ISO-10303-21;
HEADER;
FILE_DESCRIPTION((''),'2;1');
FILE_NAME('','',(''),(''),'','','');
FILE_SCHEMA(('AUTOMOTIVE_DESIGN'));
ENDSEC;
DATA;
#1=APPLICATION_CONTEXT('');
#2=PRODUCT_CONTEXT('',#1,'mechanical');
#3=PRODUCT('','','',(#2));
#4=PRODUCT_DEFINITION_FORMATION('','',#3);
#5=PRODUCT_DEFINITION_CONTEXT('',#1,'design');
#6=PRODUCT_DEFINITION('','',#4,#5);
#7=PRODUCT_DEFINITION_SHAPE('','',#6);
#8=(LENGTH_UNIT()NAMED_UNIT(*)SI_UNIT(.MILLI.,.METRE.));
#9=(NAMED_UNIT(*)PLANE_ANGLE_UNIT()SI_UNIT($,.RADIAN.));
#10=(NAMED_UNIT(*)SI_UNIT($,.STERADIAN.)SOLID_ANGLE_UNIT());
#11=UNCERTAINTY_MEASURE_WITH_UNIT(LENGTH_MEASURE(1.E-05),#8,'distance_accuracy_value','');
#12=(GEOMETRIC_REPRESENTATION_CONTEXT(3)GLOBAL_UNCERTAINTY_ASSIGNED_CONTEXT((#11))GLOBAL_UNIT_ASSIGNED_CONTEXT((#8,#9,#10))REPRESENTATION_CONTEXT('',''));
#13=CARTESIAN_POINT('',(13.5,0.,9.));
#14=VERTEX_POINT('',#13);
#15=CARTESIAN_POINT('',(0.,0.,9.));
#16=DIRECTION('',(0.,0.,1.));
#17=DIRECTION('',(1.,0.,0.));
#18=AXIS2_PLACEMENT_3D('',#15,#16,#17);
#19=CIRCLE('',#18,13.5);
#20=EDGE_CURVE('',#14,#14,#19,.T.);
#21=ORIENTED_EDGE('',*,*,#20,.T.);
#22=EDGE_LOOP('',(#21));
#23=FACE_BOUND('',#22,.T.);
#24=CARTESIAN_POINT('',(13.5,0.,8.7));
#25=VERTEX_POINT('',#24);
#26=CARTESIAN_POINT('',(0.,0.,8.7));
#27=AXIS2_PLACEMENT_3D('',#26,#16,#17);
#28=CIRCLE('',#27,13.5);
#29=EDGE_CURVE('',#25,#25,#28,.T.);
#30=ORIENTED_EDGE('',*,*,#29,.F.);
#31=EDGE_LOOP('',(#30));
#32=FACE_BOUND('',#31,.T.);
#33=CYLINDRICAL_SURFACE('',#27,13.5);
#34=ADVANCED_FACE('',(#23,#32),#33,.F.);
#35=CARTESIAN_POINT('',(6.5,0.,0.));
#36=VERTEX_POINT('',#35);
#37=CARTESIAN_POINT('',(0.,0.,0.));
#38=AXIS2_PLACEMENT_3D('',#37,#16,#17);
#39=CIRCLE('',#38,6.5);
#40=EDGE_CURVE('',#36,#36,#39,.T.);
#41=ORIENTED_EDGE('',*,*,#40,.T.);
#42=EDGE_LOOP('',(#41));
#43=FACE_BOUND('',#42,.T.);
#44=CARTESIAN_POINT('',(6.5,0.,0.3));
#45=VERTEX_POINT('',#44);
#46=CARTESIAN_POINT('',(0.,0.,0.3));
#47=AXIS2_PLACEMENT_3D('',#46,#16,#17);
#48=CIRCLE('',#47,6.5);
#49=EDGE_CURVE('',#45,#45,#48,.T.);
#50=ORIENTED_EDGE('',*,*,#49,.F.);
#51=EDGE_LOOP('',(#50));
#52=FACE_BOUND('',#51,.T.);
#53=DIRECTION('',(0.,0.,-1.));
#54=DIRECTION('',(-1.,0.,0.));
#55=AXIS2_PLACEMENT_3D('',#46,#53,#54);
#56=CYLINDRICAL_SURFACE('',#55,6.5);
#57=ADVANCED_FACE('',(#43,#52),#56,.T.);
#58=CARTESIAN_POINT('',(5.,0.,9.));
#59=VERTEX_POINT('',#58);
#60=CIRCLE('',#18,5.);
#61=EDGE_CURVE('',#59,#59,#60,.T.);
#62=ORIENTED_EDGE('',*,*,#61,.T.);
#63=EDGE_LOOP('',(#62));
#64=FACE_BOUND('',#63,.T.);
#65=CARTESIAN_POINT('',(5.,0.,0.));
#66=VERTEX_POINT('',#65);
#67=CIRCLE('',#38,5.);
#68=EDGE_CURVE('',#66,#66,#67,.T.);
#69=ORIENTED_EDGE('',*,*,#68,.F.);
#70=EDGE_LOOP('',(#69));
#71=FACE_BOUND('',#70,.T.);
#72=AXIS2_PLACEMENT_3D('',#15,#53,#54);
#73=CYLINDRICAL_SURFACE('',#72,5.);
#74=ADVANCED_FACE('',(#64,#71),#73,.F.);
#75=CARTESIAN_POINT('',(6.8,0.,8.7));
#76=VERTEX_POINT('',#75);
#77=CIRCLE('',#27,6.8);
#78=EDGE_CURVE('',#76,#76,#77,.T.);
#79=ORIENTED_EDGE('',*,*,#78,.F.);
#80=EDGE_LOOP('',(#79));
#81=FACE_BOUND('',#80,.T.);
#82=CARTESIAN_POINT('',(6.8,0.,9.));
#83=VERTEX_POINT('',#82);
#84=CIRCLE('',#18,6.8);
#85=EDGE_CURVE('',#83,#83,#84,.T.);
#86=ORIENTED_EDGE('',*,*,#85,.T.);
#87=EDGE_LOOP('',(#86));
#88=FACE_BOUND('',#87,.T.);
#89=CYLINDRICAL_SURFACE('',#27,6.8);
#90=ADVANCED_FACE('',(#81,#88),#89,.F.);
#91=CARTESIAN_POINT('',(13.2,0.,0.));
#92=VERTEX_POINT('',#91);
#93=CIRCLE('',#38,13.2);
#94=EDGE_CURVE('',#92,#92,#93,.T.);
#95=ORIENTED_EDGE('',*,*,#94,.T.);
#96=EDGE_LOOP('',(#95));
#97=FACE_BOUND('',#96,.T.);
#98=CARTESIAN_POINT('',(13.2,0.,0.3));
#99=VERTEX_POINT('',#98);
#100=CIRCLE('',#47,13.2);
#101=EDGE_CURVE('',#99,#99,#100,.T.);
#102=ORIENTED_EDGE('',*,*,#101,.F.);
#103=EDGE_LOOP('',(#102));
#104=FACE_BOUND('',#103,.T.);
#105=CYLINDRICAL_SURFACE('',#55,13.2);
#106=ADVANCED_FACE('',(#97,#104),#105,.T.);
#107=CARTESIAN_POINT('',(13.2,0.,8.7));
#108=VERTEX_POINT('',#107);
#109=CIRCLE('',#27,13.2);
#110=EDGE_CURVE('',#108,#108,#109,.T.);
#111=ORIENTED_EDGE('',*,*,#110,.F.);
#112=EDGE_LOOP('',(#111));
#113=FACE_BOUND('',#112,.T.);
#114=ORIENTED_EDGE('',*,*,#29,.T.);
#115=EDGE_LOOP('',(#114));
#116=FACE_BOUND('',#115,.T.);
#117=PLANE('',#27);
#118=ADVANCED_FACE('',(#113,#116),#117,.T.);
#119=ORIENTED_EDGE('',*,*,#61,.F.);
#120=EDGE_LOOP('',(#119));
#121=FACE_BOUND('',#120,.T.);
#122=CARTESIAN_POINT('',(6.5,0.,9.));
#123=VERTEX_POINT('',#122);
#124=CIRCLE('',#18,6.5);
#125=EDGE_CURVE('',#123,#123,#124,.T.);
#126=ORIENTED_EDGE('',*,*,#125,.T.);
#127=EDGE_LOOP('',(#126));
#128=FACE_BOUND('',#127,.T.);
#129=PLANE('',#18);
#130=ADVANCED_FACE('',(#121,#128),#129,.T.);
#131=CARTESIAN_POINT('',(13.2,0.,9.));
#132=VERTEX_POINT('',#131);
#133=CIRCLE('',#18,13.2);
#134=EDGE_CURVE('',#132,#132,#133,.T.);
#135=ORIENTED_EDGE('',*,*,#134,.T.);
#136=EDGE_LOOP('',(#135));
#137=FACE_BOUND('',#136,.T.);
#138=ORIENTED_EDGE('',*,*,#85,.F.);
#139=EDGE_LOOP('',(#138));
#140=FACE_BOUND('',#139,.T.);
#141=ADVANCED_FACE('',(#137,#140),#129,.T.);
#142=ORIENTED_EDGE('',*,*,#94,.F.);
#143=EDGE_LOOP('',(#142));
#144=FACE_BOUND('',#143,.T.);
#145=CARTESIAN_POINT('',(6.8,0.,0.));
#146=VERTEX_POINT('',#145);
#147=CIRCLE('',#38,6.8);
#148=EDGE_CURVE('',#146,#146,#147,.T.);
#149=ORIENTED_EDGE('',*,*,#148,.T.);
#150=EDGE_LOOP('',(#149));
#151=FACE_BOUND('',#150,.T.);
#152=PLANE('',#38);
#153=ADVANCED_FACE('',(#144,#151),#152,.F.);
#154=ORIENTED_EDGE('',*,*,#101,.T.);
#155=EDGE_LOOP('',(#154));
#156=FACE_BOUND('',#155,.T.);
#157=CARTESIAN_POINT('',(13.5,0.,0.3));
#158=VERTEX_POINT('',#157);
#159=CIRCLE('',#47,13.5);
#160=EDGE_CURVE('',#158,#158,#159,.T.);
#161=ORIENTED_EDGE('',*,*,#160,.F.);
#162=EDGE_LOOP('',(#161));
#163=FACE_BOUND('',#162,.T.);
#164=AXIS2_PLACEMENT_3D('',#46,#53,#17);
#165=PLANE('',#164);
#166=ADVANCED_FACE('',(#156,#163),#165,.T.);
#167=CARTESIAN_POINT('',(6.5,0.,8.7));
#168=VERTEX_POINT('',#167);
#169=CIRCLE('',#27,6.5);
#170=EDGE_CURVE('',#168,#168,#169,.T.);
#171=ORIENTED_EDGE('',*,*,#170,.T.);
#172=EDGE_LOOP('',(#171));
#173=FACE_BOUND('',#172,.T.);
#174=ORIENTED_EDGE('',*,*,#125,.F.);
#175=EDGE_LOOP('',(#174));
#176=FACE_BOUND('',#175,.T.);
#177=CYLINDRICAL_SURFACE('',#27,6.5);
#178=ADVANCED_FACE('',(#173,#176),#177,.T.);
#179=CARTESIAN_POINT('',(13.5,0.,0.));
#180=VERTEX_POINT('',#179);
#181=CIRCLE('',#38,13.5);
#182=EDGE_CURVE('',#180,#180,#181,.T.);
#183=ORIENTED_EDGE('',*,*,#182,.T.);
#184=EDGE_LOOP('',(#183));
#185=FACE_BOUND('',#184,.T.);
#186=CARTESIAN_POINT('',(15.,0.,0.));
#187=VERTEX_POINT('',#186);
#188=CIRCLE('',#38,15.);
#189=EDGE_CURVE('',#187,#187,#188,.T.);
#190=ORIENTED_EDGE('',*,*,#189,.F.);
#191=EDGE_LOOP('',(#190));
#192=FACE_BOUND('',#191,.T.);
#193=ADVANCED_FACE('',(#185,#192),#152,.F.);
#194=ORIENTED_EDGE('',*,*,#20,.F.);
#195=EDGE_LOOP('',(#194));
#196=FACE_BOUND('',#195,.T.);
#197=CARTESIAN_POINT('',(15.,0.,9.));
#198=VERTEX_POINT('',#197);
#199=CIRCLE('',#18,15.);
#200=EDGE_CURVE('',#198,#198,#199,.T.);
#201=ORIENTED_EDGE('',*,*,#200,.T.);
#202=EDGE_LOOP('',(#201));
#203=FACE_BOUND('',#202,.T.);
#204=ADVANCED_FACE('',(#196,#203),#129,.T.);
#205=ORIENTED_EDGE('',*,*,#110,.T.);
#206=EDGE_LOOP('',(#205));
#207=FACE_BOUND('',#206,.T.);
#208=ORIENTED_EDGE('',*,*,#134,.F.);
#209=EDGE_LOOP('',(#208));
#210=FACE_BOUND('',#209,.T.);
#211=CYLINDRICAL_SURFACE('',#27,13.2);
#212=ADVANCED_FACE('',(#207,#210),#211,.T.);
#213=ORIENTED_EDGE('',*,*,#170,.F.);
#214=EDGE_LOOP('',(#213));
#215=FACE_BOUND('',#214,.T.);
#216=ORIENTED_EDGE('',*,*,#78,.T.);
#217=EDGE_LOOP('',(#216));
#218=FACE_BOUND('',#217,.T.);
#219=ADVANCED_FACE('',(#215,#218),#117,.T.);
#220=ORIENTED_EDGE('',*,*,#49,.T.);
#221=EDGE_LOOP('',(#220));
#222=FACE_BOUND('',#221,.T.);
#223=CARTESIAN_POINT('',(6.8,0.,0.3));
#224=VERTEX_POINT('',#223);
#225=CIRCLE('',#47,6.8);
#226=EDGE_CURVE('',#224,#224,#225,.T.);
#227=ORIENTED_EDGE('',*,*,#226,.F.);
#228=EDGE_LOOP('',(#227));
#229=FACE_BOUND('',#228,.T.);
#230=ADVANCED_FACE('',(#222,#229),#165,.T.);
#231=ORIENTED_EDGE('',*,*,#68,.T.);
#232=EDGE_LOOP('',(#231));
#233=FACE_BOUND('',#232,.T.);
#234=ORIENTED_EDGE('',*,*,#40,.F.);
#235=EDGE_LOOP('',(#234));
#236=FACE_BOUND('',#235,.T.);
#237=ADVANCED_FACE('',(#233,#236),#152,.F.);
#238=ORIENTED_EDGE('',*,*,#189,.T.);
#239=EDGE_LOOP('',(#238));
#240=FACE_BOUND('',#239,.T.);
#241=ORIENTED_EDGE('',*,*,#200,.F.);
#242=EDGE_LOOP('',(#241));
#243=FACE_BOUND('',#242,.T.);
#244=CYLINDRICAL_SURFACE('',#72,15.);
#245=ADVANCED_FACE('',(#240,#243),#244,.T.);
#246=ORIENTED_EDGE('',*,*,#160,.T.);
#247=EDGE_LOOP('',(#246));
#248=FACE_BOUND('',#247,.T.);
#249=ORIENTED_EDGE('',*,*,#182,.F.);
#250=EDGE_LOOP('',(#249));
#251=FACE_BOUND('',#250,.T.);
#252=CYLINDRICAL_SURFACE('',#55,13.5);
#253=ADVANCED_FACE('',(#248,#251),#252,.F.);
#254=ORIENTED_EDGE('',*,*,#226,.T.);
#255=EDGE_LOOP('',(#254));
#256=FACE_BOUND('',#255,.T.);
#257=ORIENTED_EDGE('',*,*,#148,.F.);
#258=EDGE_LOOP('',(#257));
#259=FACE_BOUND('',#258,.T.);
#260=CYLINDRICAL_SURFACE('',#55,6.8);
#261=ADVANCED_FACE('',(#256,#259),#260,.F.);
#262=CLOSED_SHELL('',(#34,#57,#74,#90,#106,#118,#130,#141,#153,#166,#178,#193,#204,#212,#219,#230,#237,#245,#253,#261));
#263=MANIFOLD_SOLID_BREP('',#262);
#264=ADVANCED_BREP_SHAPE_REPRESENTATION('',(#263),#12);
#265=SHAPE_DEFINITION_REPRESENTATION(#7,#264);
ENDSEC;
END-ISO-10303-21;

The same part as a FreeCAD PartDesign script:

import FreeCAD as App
import Part
import Sketcher
from FreeCAD import Vector

doc = App.newDocument("Part")
body = doc.addObject("PartDesign::Body", "Body")

sketch1 = body.newObject("Sketcher::SketchObject", "Sketch")
sketch1.AttachmentSupport = (doc.getObject("XY_Plane"), [""])
sketch1.MapMode = "FlatFace"
sketch1.addGeometry(Part.Circle(Vector(0, 0, 0), Vector(0, 0, 1), 15), False)
sketch1.addGeometry(Part.Circle(Vector(0, 0, 0), Vector(0, 0, 1), 5), False)
sketch1.addConstraint(Sketcher.Constraint("Coincident", 0, 3, -1, 1))
sketch1.addConstraint(Sketcher.Constraint("Coincident", 1, 3, -1, 1))
sketch1.addConstraint(Sketcher.Constraint("Diameter", 0, 30.0))
sketch1.addConstraint(Sketcher.Constraint("Diameter", 1, 10.0))
pad1 = body.newObject("PartDesign::Pad", "Pad")
pad1.Profile = sketch1
pad1.Length = 9

sketch2 = body.newObject("Sketcher::SketchObject", "Sketch001")
sketch2.AttachmentSupport = (doc.getObject("XY_Plane"), [""])
sketch2.MapMode = "FlatFace"
sketch2.AttachmentOffset = App.Placement(Vector(0, 0, 9), App.Rotation())
sketch2.addGeometry(Part.Circle(Vector(0, 0, 0), Vector(0, 0, 1), 14), False)
sketch2.addGeometry(Part.Circle(Vector(0, 0, 0), Vector(0, 0, 1), 13), False)
sketch2.addGeometry(Part.Circle(Vector(0, 0, 0), Vector(0, 0, 1), 7), False)
sketch2.addGeometry(Part.Circle(Vector(0, 0, 0), Vector(0, 0, 1), 6), False)
sketch2.addConstraint(Sketcher.Constraint("Coincident", 0, 3, -1, 1))
sketch2.addConstraint(Sketcher.Constraint("Coincident", 1, 3, -1, 1))
sketch2.addConstraint(Sketcher.Constraint("Coincident", 2, 3, -1, 1))
sketch2.addConstraint(Sketcher.Constraint("Coincident", 3, 3, -1, 1))
sketch2.addConstraint(Sketcher.Constraint("Diameter", 0, 27.0))
sketch2.addConstraint(Sketcher.Constraint("Diameter", 3, 13.0))
sketch2.addConstraint(Sketcher.Constraint("Diameter", 1, 26.4))
sketch2.addConstraint(Sketcher.Constraint("Diameter", 2, 13.6))
pocket1 = body.newObject("PartDesign::Pocket", "Pocket")
pocket1.Profile = sketch2
pocket1.Length = 0.3
doc.recompute()

datumplane = body.newObject("PartDesign::Plane", "DatumPlane")
datumplane.AttachmentSupport = (doc.getObject("XY_Plane"), [""])
datumplane.MapMode = "FlatFace"
datumplane.AttachmentOffset = App.Placement(Vector(0, 0, 4.5), App.Rotation())
mirrored = body.newObject("PartDesign::Mirrored", "Mirrored")
mirrored.Originals = [pocket1]
mirrored.MirrorPlane = (datumplane, [""])
body.Tip = mirrored

doc.recompute()
